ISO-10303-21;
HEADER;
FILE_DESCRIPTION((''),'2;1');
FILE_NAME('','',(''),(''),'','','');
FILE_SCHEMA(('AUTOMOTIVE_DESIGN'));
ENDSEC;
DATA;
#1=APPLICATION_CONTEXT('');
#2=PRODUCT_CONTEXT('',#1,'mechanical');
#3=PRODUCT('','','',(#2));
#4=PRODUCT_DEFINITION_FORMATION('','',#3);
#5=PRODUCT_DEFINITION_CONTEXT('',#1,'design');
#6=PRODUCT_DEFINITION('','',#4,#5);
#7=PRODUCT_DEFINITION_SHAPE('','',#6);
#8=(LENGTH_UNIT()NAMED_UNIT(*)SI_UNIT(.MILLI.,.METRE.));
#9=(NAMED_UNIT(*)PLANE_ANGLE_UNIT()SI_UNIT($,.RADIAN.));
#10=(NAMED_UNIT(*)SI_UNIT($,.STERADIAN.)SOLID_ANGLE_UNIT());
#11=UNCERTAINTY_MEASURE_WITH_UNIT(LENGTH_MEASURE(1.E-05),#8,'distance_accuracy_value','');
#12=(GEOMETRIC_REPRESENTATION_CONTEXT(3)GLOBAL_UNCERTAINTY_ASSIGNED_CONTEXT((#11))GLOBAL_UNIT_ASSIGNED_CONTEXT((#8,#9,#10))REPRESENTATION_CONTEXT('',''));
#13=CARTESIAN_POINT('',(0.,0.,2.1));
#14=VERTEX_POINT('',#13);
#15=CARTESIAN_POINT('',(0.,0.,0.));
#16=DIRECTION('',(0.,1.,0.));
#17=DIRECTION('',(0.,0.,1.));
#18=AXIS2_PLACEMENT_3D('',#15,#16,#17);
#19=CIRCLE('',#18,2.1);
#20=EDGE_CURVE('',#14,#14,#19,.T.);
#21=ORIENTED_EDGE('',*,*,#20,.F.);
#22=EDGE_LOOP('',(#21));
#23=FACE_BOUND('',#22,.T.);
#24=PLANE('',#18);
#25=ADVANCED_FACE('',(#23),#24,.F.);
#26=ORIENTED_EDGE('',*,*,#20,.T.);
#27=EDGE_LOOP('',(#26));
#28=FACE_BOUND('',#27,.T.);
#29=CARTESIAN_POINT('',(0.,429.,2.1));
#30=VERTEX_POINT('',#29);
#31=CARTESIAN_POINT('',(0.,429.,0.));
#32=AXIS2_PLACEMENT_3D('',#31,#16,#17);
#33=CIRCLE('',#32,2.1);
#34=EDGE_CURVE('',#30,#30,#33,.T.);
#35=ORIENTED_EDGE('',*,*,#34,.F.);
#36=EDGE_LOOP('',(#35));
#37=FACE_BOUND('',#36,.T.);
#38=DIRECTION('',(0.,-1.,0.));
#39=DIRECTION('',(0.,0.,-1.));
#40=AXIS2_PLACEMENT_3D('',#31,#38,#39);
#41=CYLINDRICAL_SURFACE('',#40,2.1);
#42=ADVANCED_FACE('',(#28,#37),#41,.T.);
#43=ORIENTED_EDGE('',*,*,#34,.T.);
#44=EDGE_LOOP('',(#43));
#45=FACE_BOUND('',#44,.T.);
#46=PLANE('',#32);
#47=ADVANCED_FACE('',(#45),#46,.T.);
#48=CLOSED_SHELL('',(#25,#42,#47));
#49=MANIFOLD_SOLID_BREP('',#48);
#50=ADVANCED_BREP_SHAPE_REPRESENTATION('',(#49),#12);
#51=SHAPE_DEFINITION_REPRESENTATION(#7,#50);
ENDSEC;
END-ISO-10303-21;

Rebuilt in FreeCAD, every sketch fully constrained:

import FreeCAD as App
import Part
import Sketcher

V = App.Vector
Q = App.Units.Quantity

doc = App.newDocument("Part")
body = doc.addObject("PartDesign::Body", "Body")

# Sketch on XZ plane
sketch1 = body.newObject("Sketcher::SketchObject", "Sketch")
sketch1.AttachmentSupport = (doc.getObject("XZ_Plane"), [""])
sketch1.MapMode = "FlatFace"
sketch1.addGeometry(Part.Circle(V(0, 0, 0), V(0, 0, 1), 2.1), False)
sketch1.addConstraint(Sketcher.Constraint("Coincident", 0, 3, -1, 1))
sketch1.addConstraint(Sketcher.Constraint("Diameter", 0, Q("4.2 mm")))
pad1 = body.newObject("PartDesign::Pad", "Pad")
pad1.Profile = sketch1
pad1.Length = 429
pad1.Reversed = True

doc.recompute()
